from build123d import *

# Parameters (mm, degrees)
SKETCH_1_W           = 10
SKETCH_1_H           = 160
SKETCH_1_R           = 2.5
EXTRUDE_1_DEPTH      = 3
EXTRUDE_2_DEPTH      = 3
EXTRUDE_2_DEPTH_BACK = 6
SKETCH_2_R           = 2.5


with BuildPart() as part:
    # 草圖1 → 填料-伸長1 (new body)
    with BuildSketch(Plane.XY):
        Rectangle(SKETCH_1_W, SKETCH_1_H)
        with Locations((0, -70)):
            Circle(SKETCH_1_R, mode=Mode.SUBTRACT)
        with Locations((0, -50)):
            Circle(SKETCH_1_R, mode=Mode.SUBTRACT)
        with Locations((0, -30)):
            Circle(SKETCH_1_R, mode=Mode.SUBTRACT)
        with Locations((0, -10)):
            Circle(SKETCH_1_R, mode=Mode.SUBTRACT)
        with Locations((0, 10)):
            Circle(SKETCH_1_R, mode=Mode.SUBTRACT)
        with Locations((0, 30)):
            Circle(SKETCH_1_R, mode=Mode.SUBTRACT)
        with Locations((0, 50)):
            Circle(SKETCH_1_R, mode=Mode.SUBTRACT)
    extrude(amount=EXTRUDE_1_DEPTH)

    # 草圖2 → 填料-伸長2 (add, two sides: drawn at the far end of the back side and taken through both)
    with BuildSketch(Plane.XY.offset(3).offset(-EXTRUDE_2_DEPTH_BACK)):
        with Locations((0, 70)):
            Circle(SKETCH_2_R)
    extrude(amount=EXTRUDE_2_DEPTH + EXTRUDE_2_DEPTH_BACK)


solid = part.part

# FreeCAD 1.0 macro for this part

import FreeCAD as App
import Part
import Sketcher
Q = App.Units.Quantity


def add_polygon(sketch, points):
    """Adds a closed chain of lines whose ends are joined by coincident constraints."""
    first, n = sketch.GeometryCount, len(points)
    for a, b in zip(points, points[1:] + points[:1]):
        sketch.addGeometry(Part.LineSegment(App.Vector(*a, 0), App.Vector(*b, 0)), False)
    for i in range(n):
        sketch.addConstraint(Sketcher.Constraint("Coincident", first + i, 2, first + (i + 1) % n, 1))

doc = App.newDocument("Part")
body = doc.addObject("PartDesign::Body", "Body")

# Sketch on XY plane
sketch1 = doc.addObject("Sketcher::SketchObject", "Sketch")
body.addObject(sketch1)
sketch1.AttachmentSupport = (doc.XY_Plane, [""])
sketch1.MapMode = "FlatFace"
add_polygon(sketch1, [(-5, 80), (-5, -80), (5, -80), (5, 80)])  # lines 0-3
sketch1.addGeometry(Part.Circle(App.Vector(0, -70, 0), App.Vector(0, 0, 1), 2.5), False)  # 4
sketch1.addGeometry(Part.Circle(App.Vector(0, -50, 0), App.Vector(0, 0, 1), 2.5), False)  # 5
sketch1.addGeometry(Part.Circle(App.Vector(0, -30, 0), App.Vector(0, 0, 1), 2.5), False)  # 6
sketch1.addGeometry(Part.Circle(App.Vector(0, -10, 0), App.Vector(0, 0, 1), 2.5), False)  # 7
sketch1.addGeometry(Part.Circle(App.Vector(0, 10, 0), App.Vector(0, 0, 1), 2.5), False)  # 8
sketch1.addGeometry(Part.Circle(App.Vector(0, 30, 0), App.Vector(0, 0, 1), 2.5), False)  # 9
sketch1.addGeometry(Part.Circle(App.Vector(0, 50, 0), App.Vector(0, 0, 1), 2.5), False)  # 10
sketch1.addConstraint(Sketcher.Constraint("Vertical", 0))
sketch1.addConstraint(Sketcher.Constraint("Horizontal", 1))
sketch1.addConstraint(Sketcher.Constraint("Vertical", 2))
sketch1.addConstraint(Sketcher.Constraint("Horizontal", 3))
sketch1.addConstraint(Sketcher.Constraint("Equal", 4, 5))
sketch1.addConstraint(Sketcher.Constraint("Equal", 5, 6))
sketch1.addConstraint(Sketcher.Constraint("Equal", 6, 7))
sketch1.addConstraint(Sketcher.Constraint("Equal", 7, 8))
sketch1.addConstraint(Sketcher.Constraint("Equal", 8, 9))
sketch1.addConstraint(Sketcher.Constraint("Equal", 9, 10))
sketch1.addConstraint(Sketcher.Constraint("Symmetric", 7, 3, 8, 3, -1, 1))
sketch1.addConstraint(Sketcher.Constraint("Symmetric", 6, 3, 9, 3, -1, 1))
sketch1.addConstraint(Sketcher.Constraint("Symmetric", 5, 3, 10, 3, -1, 1))
sketch1.addConstraint(Sketcher.Constraint("Symmetric", 0, 2, 2, 2, -1, 1))
sketch1.addConstraint(Sketcher.Constraint("PointOnObject", 4, 3, -2))
sketch1.addConstraint(Sketcher.Constraint("PointOnObject", 5, 3, -2))
sketch1.addConstraint(Sketcher.Constraint("PointOnObject", 6, 3, -2))
sketch1.addConstraint(Sketcher.Constraint("PointOnObject", 7, 3, -2))
sketch1.addConstraint(Sketcher.Constraint("Diameter", 4, Q("5 mm")))
sketch1.addConstraint(Sketcher.Constraint("DistanceX", 1, 1, 1, 2, Q("10 mm")))
sketch1.addConstraint(Sketcher.Constraint("DistanceY", 0, 2, 0, 1, Q("160 mm")))
sketch1.addConstraint(Sketcher.Constraint("DistanceY", 4, 3, -1, 1, Q("70 mm")))
sketch1.addConstraint(Sketcher.Constraint("DistanceY", 5, 3, -1, 1, Q("50 mm")))
sketch1.addConstraint(Sketcher.Constraint("DistanceY", 6, 3, -1, 1, Q("30 mm")))
sketch1.addConstraint(Sketcher.Constraint("DistanceY", 7, 3, -1, 1, Q("10 mm")))
pad1 = doc.addObject("PartDesign::Pad", "Pad")
body.addObject(pad1)
pad1.Profile = sketch1
pad1.Length = 3

# Sketch on XY plane
sketch2 = doc.addObject("Sketcher::SketchObject", "Sketch001")
body.addObject(sketch2)
sketch2.AttachmentSupport = (doc.XY_Plane, [""])
sketch2.MapMode = "FlatFace"
sketch2.AttachmentOffset = App.Placement(App.Vector(0, 0, 3), App.Rotation())
sketch2.addGeometry(Part.Circle(App.Vector(0, 70, 0), App.Vector(0, 0, 1), 2.5), False)
sketch2.addConstraint(Sketcher.Constraint("PointOnObject", 0, 3, -2))
sketch2.addConstraint(Sketcher.Constraint("Diameter", 0, Q("5 mm")))
sketch2.addConstraint(Sketcher.Constraint("DistanceY", -1, 1, 0, 3, Q("70 mm")))
pad2 = doc.addObject("PartDesign::Pad", "Pad001")
body.addObject(pad2)
pad2.Profile = sketch2
pad2.Type = "TwoLengths"
pad2.Length = 3
pad2.Length2 = 6

doc.recompute()
